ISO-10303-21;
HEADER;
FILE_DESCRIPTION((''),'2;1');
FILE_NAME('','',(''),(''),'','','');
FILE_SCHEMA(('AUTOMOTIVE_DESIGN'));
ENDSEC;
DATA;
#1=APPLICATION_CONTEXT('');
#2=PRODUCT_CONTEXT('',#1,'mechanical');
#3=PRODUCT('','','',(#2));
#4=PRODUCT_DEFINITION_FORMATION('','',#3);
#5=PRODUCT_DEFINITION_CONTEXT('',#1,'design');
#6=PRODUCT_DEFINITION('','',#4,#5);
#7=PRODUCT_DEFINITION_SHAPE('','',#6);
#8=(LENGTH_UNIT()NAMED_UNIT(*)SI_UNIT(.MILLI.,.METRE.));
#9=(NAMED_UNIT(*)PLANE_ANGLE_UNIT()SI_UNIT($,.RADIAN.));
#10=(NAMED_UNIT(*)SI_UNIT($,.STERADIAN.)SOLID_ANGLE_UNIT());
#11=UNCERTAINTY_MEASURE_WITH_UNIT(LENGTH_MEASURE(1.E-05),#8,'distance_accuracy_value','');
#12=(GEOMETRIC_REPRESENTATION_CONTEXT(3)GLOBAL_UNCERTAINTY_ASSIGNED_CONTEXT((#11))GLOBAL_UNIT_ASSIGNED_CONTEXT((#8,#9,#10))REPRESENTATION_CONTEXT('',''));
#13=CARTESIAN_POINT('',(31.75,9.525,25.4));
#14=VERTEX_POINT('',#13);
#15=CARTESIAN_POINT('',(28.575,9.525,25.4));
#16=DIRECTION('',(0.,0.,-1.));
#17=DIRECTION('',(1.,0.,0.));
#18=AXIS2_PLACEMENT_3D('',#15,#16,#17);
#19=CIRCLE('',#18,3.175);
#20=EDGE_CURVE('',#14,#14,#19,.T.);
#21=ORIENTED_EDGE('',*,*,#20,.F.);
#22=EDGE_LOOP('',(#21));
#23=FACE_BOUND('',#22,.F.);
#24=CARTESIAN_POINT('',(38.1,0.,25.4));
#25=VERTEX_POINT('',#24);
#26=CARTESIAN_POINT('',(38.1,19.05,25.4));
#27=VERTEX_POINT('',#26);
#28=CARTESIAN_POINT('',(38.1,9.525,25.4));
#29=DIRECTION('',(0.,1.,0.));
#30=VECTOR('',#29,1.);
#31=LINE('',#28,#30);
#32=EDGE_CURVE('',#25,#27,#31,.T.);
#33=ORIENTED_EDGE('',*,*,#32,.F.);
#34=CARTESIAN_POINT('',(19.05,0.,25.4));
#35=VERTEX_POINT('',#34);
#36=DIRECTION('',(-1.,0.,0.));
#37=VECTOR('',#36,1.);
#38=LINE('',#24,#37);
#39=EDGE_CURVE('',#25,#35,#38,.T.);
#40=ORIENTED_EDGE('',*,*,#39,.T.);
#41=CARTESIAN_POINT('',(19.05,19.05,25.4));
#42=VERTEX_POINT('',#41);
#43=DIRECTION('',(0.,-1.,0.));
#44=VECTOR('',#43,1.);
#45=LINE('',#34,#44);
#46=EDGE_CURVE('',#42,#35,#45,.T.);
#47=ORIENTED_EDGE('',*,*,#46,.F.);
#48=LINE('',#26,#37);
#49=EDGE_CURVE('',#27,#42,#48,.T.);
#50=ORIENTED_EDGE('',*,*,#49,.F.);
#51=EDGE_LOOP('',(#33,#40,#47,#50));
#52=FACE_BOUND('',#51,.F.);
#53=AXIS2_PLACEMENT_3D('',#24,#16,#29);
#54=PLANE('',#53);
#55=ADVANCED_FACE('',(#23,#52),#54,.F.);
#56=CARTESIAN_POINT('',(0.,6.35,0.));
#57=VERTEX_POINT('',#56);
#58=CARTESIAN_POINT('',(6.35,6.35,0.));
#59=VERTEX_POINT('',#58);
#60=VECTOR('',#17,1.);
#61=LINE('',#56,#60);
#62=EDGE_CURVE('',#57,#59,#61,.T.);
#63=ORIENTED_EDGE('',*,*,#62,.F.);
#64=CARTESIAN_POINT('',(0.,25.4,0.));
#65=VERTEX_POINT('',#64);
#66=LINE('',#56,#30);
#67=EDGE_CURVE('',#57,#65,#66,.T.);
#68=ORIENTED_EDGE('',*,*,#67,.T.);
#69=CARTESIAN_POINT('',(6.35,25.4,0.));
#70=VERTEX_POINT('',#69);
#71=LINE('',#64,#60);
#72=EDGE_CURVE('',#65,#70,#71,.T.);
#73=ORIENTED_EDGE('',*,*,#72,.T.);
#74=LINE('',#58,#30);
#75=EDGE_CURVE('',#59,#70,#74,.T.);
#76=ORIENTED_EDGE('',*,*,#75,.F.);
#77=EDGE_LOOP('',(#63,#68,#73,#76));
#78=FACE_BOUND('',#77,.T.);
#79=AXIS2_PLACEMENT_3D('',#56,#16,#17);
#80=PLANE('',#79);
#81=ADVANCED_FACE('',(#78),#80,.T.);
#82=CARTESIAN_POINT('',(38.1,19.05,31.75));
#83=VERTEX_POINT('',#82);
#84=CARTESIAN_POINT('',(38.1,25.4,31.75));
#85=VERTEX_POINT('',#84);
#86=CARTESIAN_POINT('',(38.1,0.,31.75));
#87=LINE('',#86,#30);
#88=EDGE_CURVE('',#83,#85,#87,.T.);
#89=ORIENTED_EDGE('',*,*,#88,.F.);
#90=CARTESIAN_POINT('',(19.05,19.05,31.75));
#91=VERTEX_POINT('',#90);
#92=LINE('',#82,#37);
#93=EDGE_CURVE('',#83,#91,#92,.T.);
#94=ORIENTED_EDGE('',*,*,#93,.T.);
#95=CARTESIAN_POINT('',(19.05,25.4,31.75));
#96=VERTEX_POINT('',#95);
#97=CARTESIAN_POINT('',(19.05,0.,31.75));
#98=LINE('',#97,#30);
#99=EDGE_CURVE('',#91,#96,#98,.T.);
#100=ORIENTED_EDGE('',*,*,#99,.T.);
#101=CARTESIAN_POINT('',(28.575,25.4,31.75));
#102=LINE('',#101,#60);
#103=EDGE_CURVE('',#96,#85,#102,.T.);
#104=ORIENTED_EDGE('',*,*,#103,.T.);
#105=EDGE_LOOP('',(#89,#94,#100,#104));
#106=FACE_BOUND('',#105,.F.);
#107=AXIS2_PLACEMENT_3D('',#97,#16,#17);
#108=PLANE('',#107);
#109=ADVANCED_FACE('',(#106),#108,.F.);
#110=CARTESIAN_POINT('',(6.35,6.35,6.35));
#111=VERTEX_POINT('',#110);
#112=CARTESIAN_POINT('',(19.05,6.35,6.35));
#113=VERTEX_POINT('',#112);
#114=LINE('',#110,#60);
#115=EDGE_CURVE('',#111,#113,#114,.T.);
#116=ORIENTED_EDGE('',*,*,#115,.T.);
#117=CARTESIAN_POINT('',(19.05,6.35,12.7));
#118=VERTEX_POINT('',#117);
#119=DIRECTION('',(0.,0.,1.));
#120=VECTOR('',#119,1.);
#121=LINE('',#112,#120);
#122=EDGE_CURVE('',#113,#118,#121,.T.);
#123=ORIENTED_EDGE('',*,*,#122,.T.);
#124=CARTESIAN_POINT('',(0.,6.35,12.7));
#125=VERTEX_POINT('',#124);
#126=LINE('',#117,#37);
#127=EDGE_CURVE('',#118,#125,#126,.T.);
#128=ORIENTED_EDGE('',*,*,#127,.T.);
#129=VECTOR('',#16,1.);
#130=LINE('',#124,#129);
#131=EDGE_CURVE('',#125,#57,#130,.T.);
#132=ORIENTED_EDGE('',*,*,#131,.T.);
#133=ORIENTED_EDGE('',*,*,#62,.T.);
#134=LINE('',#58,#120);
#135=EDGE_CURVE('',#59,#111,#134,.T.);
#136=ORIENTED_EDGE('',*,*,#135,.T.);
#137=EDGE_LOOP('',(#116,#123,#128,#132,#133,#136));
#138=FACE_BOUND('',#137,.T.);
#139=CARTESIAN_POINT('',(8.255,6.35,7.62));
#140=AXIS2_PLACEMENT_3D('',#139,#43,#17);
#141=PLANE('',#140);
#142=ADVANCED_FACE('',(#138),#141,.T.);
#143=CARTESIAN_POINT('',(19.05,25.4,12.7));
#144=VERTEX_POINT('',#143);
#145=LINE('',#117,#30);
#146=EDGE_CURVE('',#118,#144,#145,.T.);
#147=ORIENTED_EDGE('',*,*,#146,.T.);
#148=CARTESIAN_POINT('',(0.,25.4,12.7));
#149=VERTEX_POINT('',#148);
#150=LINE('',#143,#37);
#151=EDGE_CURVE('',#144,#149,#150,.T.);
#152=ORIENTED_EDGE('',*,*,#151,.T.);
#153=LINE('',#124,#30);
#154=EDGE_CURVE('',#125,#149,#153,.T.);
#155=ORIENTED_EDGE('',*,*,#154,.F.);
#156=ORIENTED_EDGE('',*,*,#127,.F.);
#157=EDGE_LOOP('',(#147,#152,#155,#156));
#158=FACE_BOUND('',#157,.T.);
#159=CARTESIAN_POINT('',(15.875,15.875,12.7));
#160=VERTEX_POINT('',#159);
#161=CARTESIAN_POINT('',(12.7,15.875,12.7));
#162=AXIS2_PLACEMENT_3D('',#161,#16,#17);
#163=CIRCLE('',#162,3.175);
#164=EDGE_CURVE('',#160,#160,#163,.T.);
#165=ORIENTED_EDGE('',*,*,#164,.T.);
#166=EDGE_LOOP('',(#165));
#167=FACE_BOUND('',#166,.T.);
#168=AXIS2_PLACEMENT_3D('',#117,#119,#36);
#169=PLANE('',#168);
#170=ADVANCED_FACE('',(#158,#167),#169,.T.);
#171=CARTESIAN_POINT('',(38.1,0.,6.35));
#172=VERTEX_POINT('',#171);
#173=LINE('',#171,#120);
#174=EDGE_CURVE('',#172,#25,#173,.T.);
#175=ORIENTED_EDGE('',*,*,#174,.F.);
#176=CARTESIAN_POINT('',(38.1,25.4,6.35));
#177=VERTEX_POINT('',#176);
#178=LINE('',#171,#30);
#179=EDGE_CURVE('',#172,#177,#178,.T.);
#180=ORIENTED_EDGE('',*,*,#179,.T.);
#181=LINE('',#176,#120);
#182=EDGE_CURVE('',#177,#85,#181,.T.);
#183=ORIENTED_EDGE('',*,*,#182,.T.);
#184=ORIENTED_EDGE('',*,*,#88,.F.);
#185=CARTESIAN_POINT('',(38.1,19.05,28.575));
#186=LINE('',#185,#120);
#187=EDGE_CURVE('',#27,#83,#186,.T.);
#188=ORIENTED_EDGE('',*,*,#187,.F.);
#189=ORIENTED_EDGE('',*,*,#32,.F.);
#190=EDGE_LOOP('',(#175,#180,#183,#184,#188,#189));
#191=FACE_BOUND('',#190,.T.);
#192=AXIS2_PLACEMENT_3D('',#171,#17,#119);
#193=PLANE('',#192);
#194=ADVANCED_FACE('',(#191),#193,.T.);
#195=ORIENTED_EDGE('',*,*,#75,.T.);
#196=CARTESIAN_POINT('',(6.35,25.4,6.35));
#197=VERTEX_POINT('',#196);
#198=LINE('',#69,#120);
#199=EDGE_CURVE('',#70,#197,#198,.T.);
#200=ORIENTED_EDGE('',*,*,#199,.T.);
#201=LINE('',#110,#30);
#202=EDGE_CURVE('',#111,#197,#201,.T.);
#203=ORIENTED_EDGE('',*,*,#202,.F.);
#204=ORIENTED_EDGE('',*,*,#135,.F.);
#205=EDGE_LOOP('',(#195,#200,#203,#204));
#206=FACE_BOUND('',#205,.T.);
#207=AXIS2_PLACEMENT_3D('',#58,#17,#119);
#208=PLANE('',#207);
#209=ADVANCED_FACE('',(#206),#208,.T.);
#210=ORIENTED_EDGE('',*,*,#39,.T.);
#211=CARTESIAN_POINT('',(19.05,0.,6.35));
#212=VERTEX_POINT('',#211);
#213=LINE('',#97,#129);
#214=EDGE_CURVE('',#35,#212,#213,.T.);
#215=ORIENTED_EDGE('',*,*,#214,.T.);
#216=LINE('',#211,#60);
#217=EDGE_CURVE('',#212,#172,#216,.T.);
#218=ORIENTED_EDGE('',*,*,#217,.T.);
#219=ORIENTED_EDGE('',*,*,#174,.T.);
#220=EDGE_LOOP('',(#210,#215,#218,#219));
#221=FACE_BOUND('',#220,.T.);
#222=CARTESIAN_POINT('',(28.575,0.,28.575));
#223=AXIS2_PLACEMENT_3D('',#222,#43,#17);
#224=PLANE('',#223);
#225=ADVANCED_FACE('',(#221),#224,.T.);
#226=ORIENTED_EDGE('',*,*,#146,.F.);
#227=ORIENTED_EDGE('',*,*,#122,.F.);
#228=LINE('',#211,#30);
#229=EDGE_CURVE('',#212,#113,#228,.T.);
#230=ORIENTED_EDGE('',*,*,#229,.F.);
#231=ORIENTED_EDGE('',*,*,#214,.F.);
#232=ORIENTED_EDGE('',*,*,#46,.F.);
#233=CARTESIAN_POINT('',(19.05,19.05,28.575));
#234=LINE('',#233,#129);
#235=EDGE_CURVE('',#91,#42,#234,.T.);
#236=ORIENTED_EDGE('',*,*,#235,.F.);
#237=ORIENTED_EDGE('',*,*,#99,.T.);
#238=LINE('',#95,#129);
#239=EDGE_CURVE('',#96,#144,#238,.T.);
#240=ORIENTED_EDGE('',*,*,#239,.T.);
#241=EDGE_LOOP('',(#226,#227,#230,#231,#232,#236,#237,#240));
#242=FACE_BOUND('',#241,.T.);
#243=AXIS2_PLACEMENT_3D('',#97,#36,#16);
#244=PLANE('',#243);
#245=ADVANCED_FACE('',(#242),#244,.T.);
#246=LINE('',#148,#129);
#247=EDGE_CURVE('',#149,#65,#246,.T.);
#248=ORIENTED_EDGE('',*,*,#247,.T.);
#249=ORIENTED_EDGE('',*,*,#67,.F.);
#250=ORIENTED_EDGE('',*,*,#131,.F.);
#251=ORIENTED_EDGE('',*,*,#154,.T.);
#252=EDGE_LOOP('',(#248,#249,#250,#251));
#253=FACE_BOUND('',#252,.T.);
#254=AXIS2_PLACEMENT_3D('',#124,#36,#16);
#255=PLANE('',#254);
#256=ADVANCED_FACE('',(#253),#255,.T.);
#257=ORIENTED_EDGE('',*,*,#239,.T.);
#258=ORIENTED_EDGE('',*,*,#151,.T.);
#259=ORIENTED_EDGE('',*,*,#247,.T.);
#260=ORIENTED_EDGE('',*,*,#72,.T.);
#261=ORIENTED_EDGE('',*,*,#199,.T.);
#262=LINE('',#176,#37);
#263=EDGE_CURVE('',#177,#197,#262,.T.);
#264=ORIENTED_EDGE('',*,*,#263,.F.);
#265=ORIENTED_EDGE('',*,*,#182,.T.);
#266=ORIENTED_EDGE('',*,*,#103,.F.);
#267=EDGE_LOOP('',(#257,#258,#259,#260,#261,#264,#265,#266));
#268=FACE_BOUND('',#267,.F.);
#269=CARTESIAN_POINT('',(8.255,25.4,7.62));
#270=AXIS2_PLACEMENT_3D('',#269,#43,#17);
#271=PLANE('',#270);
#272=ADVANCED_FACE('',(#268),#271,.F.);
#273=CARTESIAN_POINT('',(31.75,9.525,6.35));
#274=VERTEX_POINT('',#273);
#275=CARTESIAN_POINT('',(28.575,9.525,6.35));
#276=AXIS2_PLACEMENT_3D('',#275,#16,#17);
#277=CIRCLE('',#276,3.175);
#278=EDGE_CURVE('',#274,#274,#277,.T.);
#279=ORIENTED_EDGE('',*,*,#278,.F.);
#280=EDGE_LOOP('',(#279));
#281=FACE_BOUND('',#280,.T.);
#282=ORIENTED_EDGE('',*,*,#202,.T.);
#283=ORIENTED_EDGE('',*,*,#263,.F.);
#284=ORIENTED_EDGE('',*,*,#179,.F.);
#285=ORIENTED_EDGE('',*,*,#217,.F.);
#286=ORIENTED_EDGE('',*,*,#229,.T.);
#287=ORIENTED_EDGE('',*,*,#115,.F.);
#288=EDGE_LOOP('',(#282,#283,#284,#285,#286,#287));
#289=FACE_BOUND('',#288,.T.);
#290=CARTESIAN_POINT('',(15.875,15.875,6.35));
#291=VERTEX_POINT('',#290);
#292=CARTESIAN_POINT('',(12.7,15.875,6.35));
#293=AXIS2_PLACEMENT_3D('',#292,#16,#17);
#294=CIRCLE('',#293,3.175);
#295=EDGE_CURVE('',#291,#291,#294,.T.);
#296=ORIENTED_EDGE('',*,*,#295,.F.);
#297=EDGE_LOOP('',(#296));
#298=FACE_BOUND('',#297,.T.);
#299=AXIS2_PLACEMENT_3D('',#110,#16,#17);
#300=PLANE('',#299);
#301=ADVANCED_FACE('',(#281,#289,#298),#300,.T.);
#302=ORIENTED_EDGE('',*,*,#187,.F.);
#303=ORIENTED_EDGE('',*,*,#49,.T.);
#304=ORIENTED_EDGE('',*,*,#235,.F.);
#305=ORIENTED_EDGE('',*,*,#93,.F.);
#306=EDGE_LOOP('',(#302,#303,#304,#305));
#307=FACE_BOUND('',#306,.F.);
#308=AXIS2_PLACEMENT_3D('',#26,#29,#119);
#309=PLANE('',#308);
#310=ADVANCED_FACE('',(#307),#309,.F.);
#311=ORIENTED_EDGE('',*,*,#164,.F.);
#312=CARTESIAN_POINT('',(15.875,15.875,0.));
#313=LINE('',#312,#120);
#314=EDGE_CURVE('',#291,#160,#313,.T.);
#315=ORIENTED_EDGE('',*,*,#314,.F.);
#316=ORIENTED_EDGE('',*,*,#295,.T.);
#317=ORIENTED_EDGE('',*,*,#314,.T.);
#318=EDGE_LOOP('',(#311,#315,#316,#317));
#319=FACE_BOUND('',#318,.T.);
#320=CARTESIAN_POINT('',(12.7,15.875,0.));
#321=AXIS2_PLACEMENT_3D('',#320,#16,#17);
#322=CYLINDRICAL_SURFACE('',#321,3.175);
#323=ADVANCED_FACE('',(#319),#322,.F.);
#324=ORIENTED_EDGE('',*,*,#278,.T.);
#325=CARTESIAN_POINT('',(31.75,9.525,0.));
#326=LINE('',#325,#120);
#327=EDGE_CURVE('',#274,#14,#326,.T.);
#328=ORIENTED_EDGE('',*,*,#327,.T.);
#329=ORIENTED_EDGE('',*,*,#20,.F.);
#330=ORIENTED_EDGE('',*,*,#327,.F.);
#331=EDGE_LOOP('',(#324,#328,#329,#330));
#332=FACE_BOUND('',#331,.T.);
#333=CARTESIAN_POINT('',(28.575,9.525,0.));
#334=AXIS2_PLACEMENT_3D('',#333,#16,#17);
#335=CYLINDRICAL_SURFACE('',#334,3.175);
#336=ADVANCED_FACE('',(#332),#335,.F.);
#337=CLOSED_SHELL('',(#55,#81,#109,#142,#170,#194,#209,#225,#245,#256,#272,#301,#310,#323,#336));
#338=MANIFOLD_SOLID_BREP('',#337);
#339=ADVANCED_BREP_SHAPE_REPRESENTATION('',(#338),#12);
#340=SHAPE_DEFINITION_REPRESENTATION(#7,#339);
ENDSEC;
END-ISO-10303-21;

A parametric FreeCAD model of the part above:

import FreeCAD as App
import Part
import Sketcher

V = App.Vector
Q = App.Units.Quantity


def add_polygon(sketch, points):
    """Adds a closed chain of lines whose ends are joined by coincident constraints."""
    first, n = sketch.GeometryCount, len(points)
    for a, b in zip(points, points[1:] + points[:1]):
        sketch.addGeometry(Part.LineSegment(App.Vector(*a, 0), App.Vector(*b, 0)), False)
    for i in range(n):
        sketch.addConstraint(Sketcher.Constraint("Coincident", first + i, 2, first + (i + 1) % n, 1))

doc = App.newDocument("Part")
body = doc.addObject("PartDesign::Body", "Body")

# Sketch on XZ plane
sketch1 = body.newObject("Sketcher::SketchObject", "Sketch")
sketch1.AttachmentSupport = (doc.getObject("XZ_Plane"), [""])
sketch1.MapMode = "FlatFace"
add_polygon(sketch1, [(19, 32), (19, 6), (38, 6), (38, 32)])  # lines 0-3
sketch1.addConstraint([
    Sketcher.Constraint("Vertical", 0),
    Sketcher.Constraint("Horizontal", 1),
    Sketcher.Constraint("Vertical", 2),
    Sketcher.Constraint("Horizontal", 3),
    Sketcher.Constraint("DistanceY", 0, 2, 0, 1, Q("1 in")),
    Sketcher.Constraint("DistanceX", 1, 1, 1, 2, Q("0.75 in")),
    Sketcher.Constraint("DistanceX", -1, 1, 1, 2, Q("1.5 in")),
    Sketcher.Constraint("DistanceY", -1, 1, 0, 2, Q("0.25 in")),
])
pad1 = body.newObject("PartDesign::Pad", "Pad")
pad1.Profile = sketch1
pad1.Length = Q("1 in")
pad1.Reversed = True

# Sketch on XZ plane
sketch2 = body.newObject("Sketcher::SketchObject", "Sketch001")
sketch2.AttachmentSupport = (doc.getObject("XZ_Plane"), [""])
sketch2.MapMode = "FlatFace"
sketch2.AttachmentOffset = App.Placement(V(0, 0, -0.25 * 25.4), App.Rotation())
add_polygon(sketch2, [(0, 13), (0, 0), (6, 0), (6, 6), (19, 6), (19, 13)])  # lines 0-5
sketch2.addConstraint([
    Sketcher.Constraint("Vertical", 0),
    Sketcher.Constraint("Horizontal", 1),
    Sketcher.Constraint("Vertical", 2),
    Sketcher.Constraint("Horizontal", 3),
    Sketcher.Constraint("Vertical", 4),
    Sketcher.Constraint("Horizontal", 5),
    Sketcher.Constraint("Coincident", 0, 2, -1, 1),
    Sketcher.Constraint("Equal", 3, 0),
    Sketcher.Constraint("Equal", 1, 2),
    Sketcher.Constraint("Equal", 2, 4),
    Sketcher.Constraint("DistanceX", 3, 1, 3, 2, Q("0.5 in")),
])
pad2 = body.newObject("PartDesign::Pad", "Pad001")
pad2.Profile = sketch2
pad2.Length = Q("0.75 in")
pad2.Reversed = True

# Sketch on YZ plane
sketch3 = body.newObject("Sketcher::SketchObject", "Sketch002")
sketch3.AttachmentSupport = (doc.getObject("YZ_Plane"), [""])
sketch3.MapMode = "FlatFace"
sketch3.AttachmentOffset = App.Placement(V(0, 0, 1.5 * 25.4), App.Rotation())
add_polygon(sketch3, [(0, 32), (0, 25), (19, 25), (19, 32)])  # lines 0-3
sketch3.addConstraint([
    Sketcher.Constraint("Vertical", 0),
    Sketcher.Constraint("Horizontal", 1),
    Sketcher.Constraint("Vertical", 2),
    Sketcher.Constraint("Horizontal", 3),
    Sketcher.Constraint("PointOnObject", 0, 2, -2),
    Sketcher.Constraint("DistanceY", -1, 1, 0, 2, Q("1 in")),
    Sketcher.Constraint("DistanceX", 1, 1, 1, 2, Q("0.75 in")),
    Sketcher.Constraint("DistanceY", 0, 2, 0, 1, Q("0.25 in")),
])
pocket1 = body.newObject("PartDesign::Pocket", "Pocket")
pocket1.Profile = sketch3
pocket1.Type = "ThroughAll"

# Sketch on XY plane
sketch4 = body.newObject("Sketcher::SketchObject", "Sketch003")
sketch4.AttachmentSupport = (doc.getObject("XY_Plane"), [""])
sketch4.MapMode = "FlatFace"
sketch4.addGeometry([
    Part.Circle(V(12.7, 15.9, 0), V(0, 0, 1), 3.2),
    Part.Circle(V(28.6, 9.5, 0), V(0, 0, 1), 3.2),
], False)
sketch4.addConstraint([
    Sketcher.Constraint("Equal", 0, 1),
    Sketcher.Constraint("Diameter", 0, Q("0.25 in")),
    Sketcher.Constraint("DistanceX", -1, 1, 0, 3, Q("0.5 in")),
    Sketcher.Constraint("DistanceY", 1, 3, 0, 3, Q("0.25 in")),
    Sketcher.Constraint("DistanceY", -1, 1, 0, 3, Q("0.625 in")),
    Sketcher.Constraint("DistanceX", -1, 1, 1, 3, Q("1.125 in")),
])
pocket2 = body.newObject("PartDesign::Pocket", "Pocket001")
pocket2.Profile = sketch4
pocket2.Type = "ThroughAll"
pocket2.Reversed = True

doc.recompute()
